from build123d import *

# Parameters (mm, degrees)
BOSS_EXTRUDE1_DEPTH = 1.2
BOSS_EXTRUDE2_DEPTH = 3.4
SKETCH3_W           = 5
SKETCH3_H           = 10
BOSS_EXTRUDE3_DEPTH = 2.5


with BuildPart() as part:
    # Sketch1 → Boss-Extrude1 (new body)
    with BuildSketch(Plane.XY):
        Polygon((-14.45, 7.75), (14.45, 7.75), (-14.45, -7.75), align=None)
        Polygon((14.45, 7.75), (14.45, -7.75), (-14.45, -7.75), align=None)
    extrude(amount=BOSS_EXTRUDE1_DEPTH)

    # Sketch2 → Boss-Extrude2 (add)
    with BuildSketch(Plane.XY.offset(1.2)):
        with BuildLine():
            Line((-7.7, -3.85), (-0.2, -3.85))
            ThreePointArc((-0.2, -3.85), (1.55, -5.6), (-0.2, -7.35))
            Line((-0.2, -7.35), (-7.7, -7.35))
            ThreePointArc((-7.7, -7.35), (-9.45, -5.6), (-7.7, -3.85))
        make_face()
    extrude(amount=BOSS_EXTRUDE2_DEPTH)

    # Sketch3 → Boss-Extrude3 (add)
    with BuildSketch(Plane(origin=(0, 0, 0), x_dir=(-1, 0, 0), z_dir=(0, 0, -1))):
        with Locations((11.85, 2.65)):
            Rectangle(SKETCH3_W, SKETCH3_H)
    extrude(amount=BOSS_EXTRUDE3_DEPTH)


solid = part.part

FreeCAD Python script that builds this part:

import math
import FreeCAD as App
import Part
import Sketcher

V = App.Vector


def add_polygon(sketch, points):
    """Adds a closed chain of lines whose ends are joined by coincident constraints."""
    first, n = sketch.GeometryCount, len(points)
    for a, b in zip(points, points[1:] + points[:1]):
        sketch.addGeometry(Part.LineSegment(App.Vector(*a, 0), App.Vector(*b, 0)), False)
    for i in range(n):
        sketch.addConstraint(Sketcher.Constraint("Coincident", first + i, 2, first + (i + 1) % n, 1))

doc = App.newDocument("Part")
body = doc.addObject("PartDesign::Body", "Body")

# Sketch on XY plane
sketch1 = body.newObject("Sketcher::SketchObject", "Sketch")
sketch1.AttachmentSupport = (doc.getObject("XY_Plane"), [""])
sketch1.MapMode = "FlatFace"
add_polygon(sketch1, [(14, 8), (-14, 8), (-14, -8), (14, -8)])  # lines 0-3
sketch1.addConstraint([
    Sketcher.Constraint("Horizontal", 0),
    Sketcher.Constraint("Vertical", 1),
    Sketcher.Constraint("Horizontal", 2),
    Sketcher.Constraint("Vertical", 3),
    Sketcher.Constraint("Symmetric", 0, 2, 2, 2, -1, 1),
    Sketcher.Constraint("DistanceX", 0, 2, 0, 1, 28.9),
    Sketcher.Constraint("DistanceY", 1, 2, 1, 1, 15.5),
])
pad1 = body.newObject("PartDesign::Pad", "Pad")
pad1.Profile = sketch1
pad1.Length = 1.2

# Sketch on XY plane
sketch2 = body.newObject("Sketcher::SketchObject", "Sketch001")
sketch2.AttachmentSupport = (doc.getObject("XY_Plane"), [""])
sketch2.MapMode = "FlatFace"
sketch2.AttachmentOffset = App.Placement(V(0, 0, 1.2), App.Rotation())
sketch2.addGeometry([
    Part.LineSegment(V(-0.2, -3.9, 0), V(-7.7, -3.9, 0)),
    Part.ArcOfCircle(Part.Circle(V(-7.7, -5.6, 0), V(0, 0, 1), 1.8), math.radians(90), math.radians(270)),
    Part.LineSegment(V(-7.7, -7.3, 0), V(-0.2, -7.3, 0)),
    Part.ArcOfCircle(Part.Circle(V(-0.2, -5.6, 0), V(0, 0, 1), 1.8), math.radians(-90), math.radians(90)),
], False)
sketch2.addConstraint([
    Sketcher.Constraint("Tangent", 0, 2, 1, 1),
    Sketcher.Constraint("Tangent", 1, 2, 2, 1),
    Sketcher.Constraint("Tangent", 2, 2, 3, 1),
    Sketcher.Constraint("Tangent", 3, 2, 0, 1),
    Sketcher.Constraint("Horizontal", 0),
    Sketcher.Constraint("Horizontal", 2),
    Sketcher.Constraint("Radius", 1, 1.75),
    Sketcher.Constraint("DistanceX", 0, 2, 0, 1, 7.5),
    Sketcher.Constraint("DistanceX", 1, 3, -1, 1, 7.7),
    Sketcher.Constraint("DistanceY", 1, 3, -1, 1, 5.6),
])
pad2 = body.newObject("PartDesign::Pad", "Pad001")
pad2.Profile = sketch2
pad2.Length = 3.4

# Sketch on XY plane
sketch3 = body.newObject("Sketcher::SketchObject", "Sketch002")
sketch3.AttachmentSupport = (doc.getObject("XY_Plane"), [""])
sketch3.MapMode = "FlatFace"
add_polygon(sketch3, [(-9, 8), (-9, -2), (-14, -2), (-14, 8)])  # lines 0-3
sketch3.addConstraint([
    Sketcher.Constraint("Vertical", 0),
    Sketcher.Constraint("Horizontal", 1),
    Sketcher.Constraint("Vertical", 2),
    Sketcher.Constraint("Horizontal", 3),
    Sketcher.Constraint("DistanceX", 1, 2, 1, 1, 5.0),
    Sketcher.Constraint("DistanceY", 0, 2, 0, 1, 10.0),
    Sketcher.Constraint("DistanceX", 0, 2, -1, 1, 9.35),
    Sketcher.Constraint("DistanceY", 0, 2, -1, 1, 2.35),
])
pad3 = body.newObject("PartDesign::Pad", "Pad002")
pad3.Profile = sketch3
pad3.Length = 2.5
pad3.Reversed = True

doc.recompute()
